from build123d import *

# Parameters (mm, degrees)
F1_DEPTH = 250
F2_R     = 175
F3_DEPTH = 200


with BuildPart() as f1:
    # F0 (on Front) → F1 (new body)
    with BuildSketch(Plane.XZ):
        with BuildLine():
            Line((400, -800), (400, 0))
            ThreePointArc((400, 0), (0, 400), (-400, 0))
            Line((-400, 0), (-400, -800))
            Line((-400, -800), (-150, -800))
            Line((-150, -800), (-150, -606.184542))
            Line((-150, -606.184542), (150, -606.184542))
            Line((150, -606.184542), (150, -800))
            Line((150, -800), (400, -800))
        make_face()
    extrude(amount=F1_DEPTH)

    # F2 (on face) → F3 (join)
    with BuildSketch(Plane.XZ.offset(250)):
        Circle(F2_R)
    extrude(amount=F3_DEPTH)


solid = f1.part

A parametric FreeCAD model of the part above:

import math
import FreeCAD as App
import Part
import Sketcher
Q = App.Units.Quantity

doc = App.newDocument("Part")
body = doc.addObject("PartDesign::Body", "Body")

sketch1 = body.newObject("Sketcher::SketchObject", "Sketch")
sketch1.AttachmentSupport = (doc.getObject("XZ_Plane"), [""])
sketch1.MapMode = "FlatFace"
sketch1.addGeometry([
    Part.LineSegment(App.Vector(400, -800, 0), App.Vector(400, 0, 0)),
    Part.ArcOfCircle(Part.Circle(App.Vector(0, 0, 0), App.Vector(0, 0, 1), 400), math.radians(0), math.radians(180)),
    Part.LineSegment(App.Vector(-400, 0, 0), App.Vector(-400, -800, 0)),
    Part.LineSegment(App.Vector(-400, -800, 0), App.Vector(-150, -800, 0)),
    Part.LineSegment(App.Vector(-150, -800, 0), App.Vector(-150, -606, 0)),
    Part.LineSegment(App.Vector(-150, -606, 0), App.Vector(150, -606, 0)),
    Part.LineSegment(App.Vector(150, -606, 0), App.Vector(150, -800, 0)),
    Part.LineSegment(App.Vector(150, -800, 0), App.Vector(400, -800, 0)),
], False)
sketch1.addConstraint([
    Sketcher.Constraint("Tangent", 0, 2, 1, 1),
    Sketcher.Constraint("Tangent", 1, 2, 2, 1),
    Sketcher.Constraint("Coincident", 2, 2, 3, 1),
    Sketcher.Constraint("Coincident", 3, 2, 4, 1),
    Sketcher.Constraint("Coincident", 4, 2, 5, 1),
    Sketcher.Constraint("Coincident", 5, 2, 6, 1),
    Sketcher.Constraint("Coincident", 6, 2, 7, 1),
    Sketcher.Constraint("Coincident", 7, 2, 0, 1),
    Sketcher.Constraint("Vertical", 0),
    Sketcher.Constraint("Vertical", 2),
    Sketcher.Constraint("Horizontal", 3),
    Sketcher.Constraint("Vertical", 4),
    Sketcher.Constraint("Horizontal", 5),
    Sketcher.Constraint("Vertical", 6),
    Sketcher.Constraint("Horizontal", 7),
    Sketcher.Constraint("Coincident", 1, 3, -1, 1),
    Sketcher.Constraint("Symmetric", 3, 2, 6, 2, -2),
    Sketcher.Constraint("Radius", 1, Q("400 mm")),
    Sketcher.Constraint("DistanceX", 3, 1, 3, 2, Q("250 mm")),
    Sketcher.Constraint("DistanceY", 0, 1, 0, 2, Q("800 mm")),
    Sketcher.Constraint("DistanceY", 4, 1, 4, 2, Q("193.815458 mm")),
])
pad1 = body.newObject("PartDesign::Pad", "Pad")
pad1.Profile = sketch1
pad1.Length = 250

sketch2 = body.newObject("Sketcher::SketchObject", "Sketch001")
sketch2.AttachmentSupport = (doc.getObject("XZ_Plane"), [""])
sketch2.MapMode = "FlatFace"
sketch2.AttachmentOffset = App.Placement(App.Vector(0, 0, 250), App.Rotation())
sketch2.addGeometry(Part.Circle(App.Vector(0, 0, 0), App.Vector(0, 0, 1), 175), False)
sketch2.addConstraint([
    Sketcher.Constraint("Coincident", 0, 3, -1, 1),
    Sketcher.Constraint("Diameter", 0, Q("350 mm")),
])
pad2 = body.newObject("PartDesign::Pad", "Pad001")
pad2.Profile = sketch2
pad2.Length = 200

doc.recompute()
